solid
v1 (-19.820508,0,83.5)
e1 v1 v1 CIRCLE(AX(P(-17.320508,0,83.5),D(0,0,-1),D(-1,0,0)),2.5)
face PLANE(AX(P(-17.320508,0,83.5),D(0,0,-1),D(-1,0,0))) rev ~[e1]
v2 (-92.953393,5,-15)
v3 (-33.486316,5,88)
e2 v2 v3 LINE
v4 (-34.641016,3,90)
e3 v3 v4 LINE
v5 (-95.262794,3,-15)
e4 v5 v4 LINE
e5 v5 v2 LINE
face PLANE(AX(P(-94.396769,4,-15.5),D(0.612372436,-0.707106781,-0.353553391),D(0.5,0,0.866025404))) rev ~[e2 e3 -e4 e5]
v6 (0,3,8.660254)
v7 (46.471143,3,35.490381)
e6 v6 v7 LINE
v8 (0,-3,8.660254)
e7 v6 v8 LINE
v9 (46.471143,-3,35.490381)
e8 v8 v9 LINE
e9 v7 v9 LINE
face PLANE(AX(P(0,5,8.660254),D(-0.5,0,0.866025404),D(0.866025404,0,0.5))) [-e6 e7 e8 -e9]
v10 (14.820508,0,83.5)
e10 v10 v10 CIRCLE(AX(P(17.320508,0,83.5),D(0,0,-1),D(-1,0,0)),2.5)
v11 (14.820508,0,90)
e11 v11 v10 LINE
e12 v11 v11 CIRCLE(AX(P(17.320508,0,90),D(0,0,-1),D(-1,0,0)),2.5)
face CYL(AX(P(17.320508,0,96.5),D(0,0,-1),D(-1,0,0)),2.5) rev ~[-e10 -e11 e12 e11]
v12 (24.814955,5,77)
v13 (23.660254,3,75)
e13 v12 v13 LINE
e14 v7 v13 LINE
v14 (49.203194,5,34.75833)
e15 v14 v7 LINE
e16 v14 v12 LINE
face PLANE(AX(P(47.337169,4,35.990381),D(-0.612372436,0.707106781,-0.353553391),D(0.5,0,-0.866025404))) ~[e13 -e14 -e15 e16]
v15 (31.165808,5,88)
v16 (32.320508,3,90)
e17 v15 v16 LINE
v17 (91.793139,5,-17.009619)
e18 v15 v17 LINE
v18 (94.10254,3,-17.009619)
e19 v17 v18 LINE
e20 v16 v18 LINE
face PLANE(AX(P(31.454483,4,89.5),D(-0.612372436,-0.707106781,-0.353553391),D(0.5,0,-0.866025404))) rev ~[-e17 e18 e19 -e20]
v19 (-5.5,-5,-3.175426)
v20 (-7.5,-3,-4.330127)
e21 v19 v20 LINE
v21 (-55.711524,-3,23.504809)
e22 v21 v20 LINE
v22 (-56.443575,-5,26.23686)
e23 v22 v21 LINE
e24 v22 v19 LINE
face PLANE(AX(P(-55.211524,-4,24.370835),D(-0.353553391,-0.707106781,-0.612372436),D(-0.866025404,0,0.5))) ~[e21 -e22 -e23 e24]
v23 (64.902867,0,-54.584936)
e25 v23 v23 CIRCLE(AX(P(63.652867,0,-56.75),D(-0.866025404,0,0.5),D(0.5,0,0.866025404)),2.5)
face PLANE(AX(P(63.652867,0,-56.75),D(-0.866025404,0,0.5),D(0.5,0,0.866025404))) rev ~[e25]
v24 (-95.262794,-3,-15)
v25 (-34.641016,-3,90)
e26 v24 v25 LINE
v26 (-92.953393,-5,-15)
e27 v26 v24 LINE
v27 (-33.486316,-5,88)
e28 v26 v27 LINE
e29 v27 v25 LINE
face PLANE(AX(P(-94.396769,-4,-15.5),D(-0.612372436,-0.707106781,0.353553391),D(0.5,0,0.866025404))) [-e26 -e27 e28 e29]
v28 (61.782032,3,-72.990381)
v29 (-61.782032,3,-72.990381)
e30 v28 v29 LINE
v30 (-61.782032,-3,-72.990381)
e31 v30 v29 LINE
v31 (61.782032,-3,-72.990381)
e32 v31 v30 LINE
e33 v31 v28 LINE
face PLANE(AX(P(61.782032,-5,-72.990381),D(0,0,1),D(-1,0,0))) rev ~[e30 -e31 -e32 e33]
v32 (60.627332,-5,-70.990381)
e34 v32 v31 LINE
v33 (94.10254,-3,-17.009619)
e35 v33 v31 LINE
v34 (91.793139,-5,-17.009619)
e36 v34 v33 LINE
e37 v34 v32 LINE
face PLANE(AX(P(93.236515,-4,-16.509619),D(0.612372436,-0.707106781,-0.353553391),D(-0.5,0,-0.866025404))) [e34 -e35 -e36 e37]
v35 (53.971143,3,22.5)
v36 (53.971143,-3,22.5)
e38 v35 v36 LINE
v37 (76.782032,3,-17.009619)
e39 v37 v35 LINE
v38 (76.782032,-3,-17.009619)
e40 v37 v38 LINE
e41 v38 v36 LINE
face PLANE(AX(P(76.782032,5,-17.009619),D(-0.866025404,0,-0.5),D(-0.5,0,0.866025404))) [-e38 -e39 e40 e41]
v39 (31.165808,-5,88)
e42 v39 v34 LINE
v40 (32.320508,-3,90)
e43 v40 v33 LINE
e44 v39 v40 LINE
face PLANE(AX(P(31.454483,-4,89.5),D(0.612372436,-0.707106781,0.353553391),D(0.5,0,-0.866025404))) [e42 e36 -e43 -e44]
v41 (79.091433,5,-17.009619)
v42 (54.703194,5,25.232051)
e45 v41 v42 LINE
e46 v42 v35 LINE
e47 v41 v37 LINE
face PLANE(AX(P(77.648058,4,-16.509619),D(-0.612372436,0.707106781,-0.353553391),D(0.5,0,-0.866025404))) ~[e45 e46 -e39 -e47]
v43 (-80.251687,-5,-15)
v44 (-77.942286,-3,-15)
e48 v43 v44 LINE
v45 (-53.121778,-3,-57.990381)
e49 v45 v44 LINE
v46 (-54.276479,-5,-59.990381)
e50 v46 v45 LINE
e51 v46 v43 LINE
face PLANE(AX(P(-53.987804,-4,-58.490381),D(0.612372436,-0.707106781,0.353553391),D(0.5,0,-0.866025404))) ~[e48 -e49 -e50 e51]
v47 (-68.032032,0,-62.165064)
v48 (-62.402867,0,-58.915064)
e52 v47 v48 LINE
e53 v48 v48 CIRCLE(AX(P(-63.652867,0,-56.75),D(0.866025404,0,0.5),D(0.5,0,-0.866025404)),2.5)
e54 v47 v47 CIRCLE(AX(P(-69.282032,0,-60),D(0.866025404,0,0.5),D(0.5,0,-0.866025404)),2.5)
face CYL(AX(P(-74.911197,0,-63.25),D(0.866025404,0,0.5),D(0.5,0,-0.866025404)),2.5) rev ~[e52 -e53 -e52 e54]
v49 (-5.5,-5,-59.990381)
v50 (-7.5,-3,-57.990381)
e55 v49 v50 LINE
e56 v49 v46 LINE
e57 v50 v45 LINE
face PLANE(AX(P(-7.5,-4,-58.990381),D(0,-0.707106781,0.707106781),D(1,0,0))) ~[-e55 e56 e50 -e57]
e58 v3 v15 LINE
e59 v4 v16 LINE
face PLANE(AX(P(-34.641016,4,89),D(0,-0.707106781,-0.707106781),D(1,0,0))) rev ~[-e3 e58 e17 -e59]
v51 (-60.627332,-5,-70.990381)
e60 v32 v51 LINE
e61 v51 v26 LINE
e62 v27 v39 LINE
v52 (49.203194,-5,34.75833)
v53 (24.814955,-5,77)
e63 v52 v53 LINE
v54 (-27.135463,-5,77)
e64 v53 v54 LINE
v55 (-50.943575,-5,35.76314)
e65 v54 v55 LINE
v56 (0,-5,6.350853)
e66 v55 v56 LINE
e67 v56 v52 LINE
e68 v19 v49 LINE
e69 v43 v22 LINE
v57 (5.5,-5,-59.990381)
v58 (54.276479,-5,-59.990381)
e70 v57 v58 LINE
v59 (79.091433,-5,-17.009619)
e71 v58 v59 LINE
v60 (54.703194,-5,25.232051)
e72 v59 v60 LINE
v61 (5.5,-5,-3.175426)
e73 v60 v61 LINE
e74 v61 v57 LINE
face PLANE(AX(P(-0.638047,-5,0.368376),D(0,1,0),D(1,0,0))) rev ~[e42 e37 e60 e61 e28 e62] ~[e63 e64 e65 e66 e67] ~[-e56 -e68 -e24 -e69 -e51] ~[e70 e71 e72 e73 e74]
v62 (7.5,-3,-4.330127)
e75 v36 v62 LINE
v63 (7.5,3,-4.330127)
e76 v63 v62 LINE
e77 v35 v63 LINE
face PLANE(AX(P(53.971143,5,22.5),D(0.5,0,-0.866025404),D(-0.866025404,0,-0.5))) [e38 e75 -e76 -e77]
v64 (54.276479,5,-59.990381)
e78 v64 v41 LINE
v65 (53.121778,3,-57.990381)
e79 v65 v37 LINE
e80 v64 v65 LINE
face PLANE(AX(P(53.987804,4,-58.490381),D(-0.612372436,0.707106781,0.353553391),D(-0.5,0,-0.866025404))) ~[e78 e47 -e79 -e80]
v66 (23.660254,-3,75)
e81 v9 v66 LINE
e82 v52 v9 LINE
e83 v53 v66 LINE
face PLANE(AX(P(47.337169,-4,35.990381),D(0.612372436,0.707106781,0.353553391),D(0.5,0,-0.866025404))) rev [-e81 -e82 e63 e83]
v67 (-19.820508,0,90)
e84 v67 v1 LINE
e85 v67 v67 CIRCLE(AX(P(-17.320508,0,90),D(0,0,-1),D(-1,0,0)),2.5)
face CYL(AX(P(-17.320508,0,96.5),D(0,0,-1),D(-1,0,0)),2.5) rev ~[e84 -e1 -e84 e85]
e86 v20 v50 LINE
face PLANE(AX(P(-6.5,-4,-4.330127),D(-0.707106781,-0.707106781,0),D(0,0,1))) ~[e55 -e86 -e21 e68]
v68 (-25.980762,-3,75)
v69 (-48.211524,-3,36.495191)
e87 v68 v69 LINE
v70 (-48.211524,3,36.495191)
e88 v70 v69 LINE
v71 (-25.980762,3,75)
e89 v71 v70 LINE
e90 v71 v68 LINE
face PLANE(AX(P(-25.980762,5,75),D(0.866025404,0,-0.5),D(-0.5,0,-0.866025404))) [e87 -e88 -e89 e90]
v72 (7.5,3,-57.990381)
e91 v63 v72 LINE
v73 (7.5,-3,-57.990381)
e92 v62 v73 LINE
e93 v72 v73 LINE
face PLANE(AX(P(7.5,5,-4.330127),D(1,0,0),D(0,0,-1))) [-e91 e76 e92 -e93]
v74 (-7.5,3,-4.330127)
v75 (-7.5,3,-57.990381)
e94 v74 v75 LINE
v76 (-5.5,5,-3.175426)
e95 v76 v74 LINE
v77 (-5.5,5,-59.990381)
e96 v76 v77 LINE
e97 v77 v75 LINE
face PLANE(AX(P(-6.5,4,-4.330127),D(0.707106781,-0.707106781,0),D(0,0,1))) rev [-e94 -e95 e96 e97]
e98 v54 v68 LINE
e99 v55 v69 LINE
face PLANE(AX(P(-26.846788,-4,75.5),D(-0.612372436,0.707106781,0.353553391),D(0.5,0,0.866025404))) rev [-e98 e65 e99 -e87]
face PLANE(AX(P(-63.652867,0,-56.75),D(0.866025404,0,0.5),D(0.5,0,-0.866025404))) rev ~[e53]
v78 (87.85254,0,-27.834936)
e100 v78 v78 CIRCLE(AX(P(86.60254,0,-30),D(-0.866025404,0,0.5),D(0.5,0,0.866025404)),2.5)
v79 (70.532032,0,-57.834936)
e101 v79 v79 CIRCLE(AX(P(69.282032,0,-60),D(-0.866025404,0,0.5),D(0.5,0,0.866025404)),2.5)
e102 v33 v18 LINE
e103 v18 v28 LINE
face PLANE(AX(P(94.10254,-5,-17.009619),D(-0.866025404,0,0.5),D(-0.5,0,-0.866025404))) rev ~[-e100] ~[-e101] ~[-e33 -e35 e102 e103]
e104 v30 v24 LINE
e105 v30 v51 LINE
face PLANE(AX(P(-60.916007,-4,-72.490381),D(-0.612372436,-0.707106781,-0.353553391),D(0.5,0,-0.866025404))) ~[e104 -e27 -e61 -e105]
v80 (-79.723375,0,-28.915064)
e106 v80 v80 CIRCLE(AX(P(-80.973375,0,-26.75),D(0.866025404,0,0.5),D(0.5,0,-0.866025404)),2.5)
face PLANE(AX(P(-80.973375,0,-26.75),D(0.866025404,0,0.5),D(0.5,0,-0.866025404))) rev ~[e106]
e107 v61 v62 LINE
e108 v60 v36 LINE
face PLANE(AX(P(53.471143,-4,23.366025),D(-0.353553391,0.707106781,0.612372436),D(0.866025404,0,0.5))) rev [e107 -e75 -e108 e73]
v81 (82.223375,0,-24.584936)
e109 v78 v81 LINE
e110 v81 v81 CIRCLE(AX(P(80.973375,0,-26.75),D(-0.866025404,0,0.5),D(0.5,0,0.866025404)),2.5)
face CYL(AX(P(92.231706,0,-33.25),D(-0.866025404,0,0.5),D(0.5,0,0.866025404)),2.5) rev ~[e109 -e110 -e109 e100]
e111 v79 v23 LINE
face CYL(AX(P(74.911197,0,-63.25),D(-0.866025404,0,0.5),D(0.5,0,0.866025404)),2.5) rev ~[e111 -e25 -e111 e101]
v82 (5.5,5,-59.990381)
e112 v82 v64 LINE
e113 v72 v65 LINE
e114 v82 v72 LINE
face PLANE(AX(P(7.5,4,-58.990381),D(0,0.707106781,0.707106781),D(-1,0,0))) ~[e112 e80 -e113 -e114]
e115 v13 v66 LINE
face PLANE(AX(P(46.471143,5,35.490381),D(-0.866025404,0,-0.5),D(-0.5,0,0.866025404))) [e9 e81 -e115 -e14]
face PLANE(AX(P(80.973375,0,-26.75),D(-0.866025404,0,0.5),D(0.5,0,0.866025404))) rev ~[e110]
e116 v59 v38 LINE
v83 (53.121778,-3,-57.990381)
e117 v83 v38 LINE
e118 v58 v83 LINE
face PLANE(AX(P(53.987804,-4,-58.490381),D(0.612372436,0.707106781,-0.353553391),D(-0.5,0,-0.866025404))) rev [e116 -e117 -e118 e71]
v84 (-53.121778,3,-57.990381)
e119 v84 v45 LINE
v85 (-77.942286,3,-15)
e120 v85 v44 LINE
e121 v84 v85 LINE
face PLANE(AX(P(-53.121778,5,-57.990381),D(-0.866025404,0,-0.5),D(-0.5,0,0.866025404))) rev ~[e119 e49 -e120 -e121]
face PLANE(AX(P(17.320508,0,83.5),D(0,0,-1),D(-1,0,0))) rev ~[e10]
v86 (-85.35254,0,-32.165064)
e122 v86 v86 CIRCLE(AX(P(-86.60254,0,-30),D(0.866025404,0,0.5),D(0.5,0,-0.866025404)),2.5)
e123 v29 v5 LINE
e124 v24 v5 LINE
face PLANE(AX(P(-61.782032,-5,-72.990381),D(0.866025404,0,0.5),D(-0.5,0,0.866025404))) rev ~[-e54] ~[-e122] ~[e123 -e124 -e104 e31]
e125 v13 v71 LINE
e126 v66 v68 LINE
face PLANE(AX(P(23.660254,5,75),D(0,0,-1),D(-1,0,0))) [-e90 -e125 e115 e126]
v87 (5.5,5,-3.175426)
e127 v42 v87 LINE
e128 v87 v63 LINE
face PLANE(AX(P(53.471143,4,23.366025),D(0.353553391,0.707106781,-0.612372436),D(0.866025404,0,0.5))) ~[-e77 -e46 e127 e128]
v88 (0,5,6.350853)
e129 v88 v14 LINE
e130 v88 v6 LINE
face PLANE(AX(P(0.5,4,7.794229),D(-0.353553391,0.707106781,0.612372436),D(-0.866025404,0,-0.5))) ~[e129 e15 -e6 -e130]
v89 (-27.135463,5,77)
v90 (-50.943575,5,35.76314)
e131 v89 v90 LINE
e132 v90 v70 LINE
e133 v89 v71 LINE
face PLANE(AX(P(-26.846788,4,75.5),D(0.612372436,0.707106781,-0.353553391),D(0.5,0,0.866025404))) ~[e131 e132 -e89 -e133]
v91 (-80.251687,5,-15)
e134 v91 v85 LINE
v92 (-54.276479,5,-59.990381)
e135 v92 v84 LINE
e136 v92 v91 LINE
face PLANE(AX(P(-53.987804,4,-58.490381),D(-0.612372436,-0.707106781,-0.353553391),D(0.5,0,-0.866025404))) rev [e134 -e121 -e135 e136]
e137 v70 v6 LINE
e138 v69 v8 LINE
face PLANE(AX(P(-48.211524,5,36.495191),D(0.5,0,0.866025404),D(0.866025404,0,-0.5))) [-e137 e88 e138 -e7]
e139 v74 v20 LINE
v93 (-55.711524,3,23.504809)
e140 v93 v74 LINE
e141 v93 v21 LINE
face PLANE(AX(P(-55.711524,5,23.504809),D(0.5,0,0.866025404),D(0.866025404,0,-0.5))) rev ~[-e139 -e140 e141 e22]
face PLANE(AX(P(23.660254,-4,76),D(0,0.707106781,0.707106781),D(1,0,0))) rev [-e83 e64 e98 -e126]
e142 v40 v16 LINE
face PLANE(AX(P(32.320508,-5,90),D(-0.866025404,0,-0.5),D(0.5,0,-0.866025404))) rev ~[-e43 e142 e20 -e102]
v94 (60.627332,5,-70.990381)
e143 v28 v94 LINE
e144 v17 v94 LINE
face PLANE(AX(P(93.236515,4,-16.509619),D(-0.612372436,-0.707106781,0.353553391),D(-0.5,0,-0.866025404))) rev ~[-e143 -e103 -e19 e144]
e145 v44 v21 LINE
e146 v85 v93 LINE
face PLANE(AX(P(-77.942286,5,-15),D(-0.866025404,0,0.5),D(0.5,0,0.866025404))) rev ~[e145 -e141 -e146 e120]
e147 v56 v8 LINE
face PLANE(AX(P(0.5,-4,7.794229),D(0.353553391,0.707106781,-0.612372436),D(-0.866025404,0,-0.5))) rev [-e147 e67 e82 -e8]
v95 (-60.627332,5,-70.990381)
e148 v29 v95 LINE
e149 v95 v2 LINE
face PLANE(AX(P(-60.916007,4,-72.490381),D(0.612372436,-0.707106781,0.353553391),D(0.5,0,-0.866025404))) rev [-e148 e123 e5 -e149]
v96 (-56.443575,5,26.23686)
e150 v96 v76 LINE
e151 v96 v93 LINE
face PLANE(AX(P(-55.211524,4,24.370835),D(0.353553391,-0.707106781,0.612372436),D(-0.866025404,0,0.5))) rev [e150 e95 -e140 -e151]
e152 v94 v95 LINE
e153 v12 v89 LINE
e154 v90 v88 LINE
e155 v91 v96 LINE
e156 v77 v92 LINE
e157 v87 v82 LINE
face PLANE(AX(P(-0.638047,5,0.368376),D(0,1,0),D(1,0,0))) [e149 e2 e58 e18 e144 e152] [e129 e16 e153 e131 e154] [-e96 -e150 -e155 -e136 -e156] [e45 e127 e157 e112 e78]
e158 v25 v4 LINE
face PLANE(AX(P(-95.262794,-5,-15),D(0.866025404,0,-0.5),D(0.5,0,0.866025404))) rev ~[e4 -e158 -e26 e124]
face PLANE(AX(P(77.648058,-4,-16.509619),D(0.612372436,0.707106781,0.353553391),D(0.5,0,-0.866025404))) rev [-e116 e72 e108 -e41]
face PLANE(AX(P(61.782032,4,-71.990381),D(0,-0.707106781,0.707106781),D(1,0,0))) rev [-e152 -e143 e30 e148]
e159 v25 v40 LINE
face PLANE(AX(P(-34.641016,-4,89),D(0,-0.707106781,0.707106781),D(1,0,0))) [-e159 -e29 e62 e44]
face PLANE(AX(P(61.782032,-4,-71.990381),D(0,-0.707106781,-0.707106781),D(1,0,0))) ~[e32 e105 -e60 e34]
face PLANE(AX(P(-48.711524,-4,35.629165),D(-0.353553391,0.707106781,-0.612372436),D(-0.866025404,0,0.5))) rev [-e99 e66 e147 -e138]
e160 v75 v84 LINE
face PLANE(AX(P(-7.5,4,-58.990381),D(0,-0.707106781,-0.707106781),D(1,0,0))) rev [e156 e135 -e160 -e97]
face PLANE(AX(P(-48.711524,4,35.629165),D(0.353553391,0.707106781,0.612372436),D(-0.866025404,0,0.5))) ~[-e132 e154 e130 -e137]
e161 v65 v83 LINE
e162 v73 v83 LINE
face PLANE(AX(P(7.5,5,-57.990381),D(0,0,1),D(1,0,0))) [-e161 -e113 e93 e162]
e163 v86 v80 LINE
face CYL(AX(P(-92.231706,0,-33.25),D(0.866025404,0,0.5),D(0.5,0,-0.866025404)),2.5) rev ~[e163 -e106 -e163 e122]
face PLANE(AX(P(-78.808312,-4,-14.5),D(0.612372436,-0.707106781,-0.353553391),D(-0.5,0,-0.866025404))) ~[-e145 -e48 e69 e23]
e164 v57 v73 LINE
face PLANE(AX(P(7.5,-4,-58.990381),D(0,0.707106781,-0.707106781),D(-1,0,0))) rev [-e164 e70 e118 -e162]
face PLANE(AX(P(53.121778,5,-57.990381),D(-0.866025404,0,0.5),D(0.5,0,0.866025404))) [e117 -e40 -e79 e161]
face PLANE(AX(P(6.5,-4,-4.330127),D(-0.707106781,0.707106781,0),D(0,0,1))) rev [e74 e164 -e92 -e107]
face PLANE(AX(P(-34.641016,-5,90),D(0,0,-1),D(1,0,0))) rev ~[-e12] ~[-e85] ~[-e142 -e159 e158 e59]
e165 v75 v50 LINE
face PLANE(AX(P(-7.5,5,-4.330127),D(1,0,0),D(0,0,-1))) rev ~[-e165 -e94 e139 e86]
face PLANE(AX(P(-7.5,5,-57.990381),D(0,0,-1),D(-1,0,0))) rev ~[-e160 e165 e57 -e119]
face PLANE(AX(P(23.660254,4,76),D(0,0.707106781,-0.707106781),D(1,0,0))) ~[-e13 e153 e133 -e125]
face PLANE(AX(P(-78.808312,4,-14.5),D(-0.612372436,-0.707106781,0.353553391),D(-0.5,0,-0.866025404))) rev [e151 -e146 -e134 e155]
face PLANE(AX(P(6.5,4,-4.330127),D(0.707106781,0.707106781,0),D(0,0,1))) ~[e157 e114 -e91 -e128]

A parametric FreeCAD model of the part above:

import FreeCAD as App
import Part
import Sketcher
Q = App.Units.Quantity


def edges_at(feature, points):
    """Names of the edges that pass closest to the given points."""
    edges = feature.Shape.Edges
    near = lambda p: min(range(len(edges)), key=lambda i: edges[i].distToShape(Part.Vertex(*p))[0])
    return sorted({f"Edge{near(p) + 1}" for p in points})


def add_polygon(sketch, points):
    """Adds a closed chain of lines whose ends are joined by coincident constraints."""
    first, n = sketch.GeometryCount, len(points)
    for a, b in zip(points, points[1:] + points[:1]):
        sketch.addGeometry(Part.LineSegment(App.Vector(*a, 0), App.Vector(*b, 0)), False)
    for i in range(n):
        sketch.addConstraint(Sketcher.Constraint("Coincident", first + i, 2, first + (i + 1) % n, 1))

doc = App.newDocument("Part")
body = doc.addObject("PartDesign::Body", "Body")

sketch1 = doc.addObject("Sketcher::SketchObject", "Sketch")
body.addObject(sketch1)
sketch1.AttachmentSupport = (doc.XZ_Plane, [""])
sketch1.MapMode = "FlatFace"
add_polygon(sketch1, [(-62, -73), (-95, -15), (-35, 90), (32, 90), (94, -17), (62, -73)])
sketch1.addConstraint(Sketcher.Constraint("Horizontal", 2))
sketch1.addConstraint(Sketcher.Constraint("Horizontal", 5))
sketch1.addConstraint(Sketcher.Constraint("Parallel", 0, 3))
sketch1.addConstraint(Sketcher.Constraint("Parallel", 1, 4))
sketch1.addConstraint(Sketcher.Constraint("Angle", 0, Q("120 deg")))
sketch1.addConstraint(Sketcher.Constraint("Angle", 1, Q("60 deg")))
sketch1.addConstraint(Sketcher.Constraint("DistanceY", 0, 2, -1, 1, 15.0))
sketch1.addConstraint(Sketcher.Constraint("DistanceY", -1, 1, 1, 2, 90.0))
sketch1.addConstraint(Sketcher.Constraint("DistanceX", 2, 1, 2, 2, 66.961524))
sketch1.addConstraint(Sketcher.Constraint("DistanceX", 5, 2, 5, 1, 123.564065))
sketch1.addConstraint(Sketcher.Constraint("DistanceX", -1, 1, 2, 2, 32.320508))
sketch1.addConstraint(Sketcher.Constraint("DistanceX", -1, 1, 3, 2, 94.10254))
pad1 = doc.addObject("PartDesign::Pad", "Pad")
body.addObject(pad1)
pad1.Profile = sketch1
pad1.Type = "TwoLengths"
pad1.Length = 5
pad1.Length2 = 5
pad1.Reversed = True

sketch2 = doc.addObject("Sketcher::SketchObject", "Sketch001")
body.addObject(sketch2)
sketch2.AttachmentSupport = (doc.XY_Plane, [""])
sketch2.MapMode = "FlatFace"
sketch2.AttachmentOffset = App.Placement(App.Vector(0, 0, 90), App.Rotation())
sketch2.addGeometry(Part.Circle(App.Vector(-17.3, 0, 0), App.Vector(0, 0, 1), 2.5), False)
sketch2.addGeometry(Part.Circle(App.Vector(17.3, 0, 0), App.Vector(0, 0, 1), 2.5), False)
sketch2.addConstraint(Sketcher.Constraint("Equal", 0, 1))
sketch2.addConstraint(Sketcher.Constraint("Symmetric", 0, 3, 1, 3, -1, 1))
sketch2.addConstraint(Sketcher.Constraint("PointOnObject", 0, 3, -1))
sketch2.addConstraint(Sketcher.Constraint("Diameter", 0, 5.0))
sketch2.addConstraint(Sketcher.Constraint("DistanceX", 0, 3, -1, 1, 17.320508))
doc.recompute()
hole = doc.addObject("PartDesign::Hole", "Hole")
body.addObject(hole)
hole.Profile = sketch2
hole.ThreadType = "None"
hole.Diameter = 5
hole.DepthType = "Dimension"
hole.Depth = 6.5
hole.DrillPoint = "Flat"

sketch3 = doc.addObject("Sketcher::SketchObject", "Sketch002")
body.addObject(sketch3)
sketch3.Placement = App.Placement(App.Vector(77.942286, 0, -45), App.Rotation(App.Vector(-0.5, 0, -0.866025404), App.Vector(0, 1, 0), App.Vector(0.866025404, 0, -0.5), "ZXY"))
sketch3.addGeometry(Part.Circle(App.Vector(-17.3, 0, 0), App.Vector(0, 0, 1), 2.5), False)
sketch3.addGeometry(Part.Circle(App.Vector(17.3, 0, 0), App.Vector(0, 0, 1), 2.5), False)
sketch3.addConstraint(Sketcher.Constraint("Equal", 0, 1))
sketch3.addConstraint(Sketcher.Constraint("Symmetric", 0, 3, 1, 3, -1, 1))
sketch3.addConstraint(Sketcher.Constraint("PointOnObject", 0, 3, -1))
sketch3.addConstraint(Sketcher.Constraint("Diameter", 0, 5.0))
sketch3.addConstraint(Sketcher.Constraint("DistanceX", 0, 3, -1, 1, 17.320508))
doc.recompute()
hole2 = doc.addObject("PartDesign::Hole", "Hole001")
body.addObject(hole2)
hole2.Profile = sketch3
hole2.ThreadType = "None"
hole2.Diameter = 5
hole2.DepthType = "Dimension"
hole2.Depth = 6.5
hole2.DrillPoint = "Flat"

sketch4 = doc.addObject("Sketcher::SketchObject", "Sketch003")
body.addObject(sketch4)
sketch4.Placement = App.Placement(App.Vector(-77.942286, 0, -45), App.Rotation(App.Vector(-0.5, 0, 0.866025404), App.Vector(0, 1, 0), App.Vector(-0.866025404, 0, -0.5), "ZXY"))
sketch4.addGeometry(Part.Circle(App.Vector(-17.3, 0, 0), App.Vector(0, 0, 1), 2.5), False)
sketch4.addGeometry(Part.Circle(App.Vector(17.3, 0, 0), App.Vector(0, 0, 1), 2.5), False)
sketch4.addConstraint(Sketcher.Constraint("Equal", 0, 1))
sketch4.addConstraint(Sketcher.Constraint("Symmetric", 0, 3, 1, 3, -1, 1))
sketch4.addConstraint(Sketcher.Constraint("PointOnObject", 0, 3, -1))
sketch4.addConstraint(Sketcher.Constraint("Diameter", 0, 5.0))
sketch4.addConstraint(Sketcher.Constraint("DistanceX", 0, 3, -1, 1, 17.320508))
doc.recompute()
hole3 = doc.addObject("PartDesign::Hole", "Hole002")
body.addObject(hole3)
hole3.Profile = sketch4
hole3.ThreadType = "None"
hole3.Diameter = 5
hole3.DepthType = "Dimension"
hole3.Depth = 6.5
hole3.DrillPoint = "Flat"

sketch5 = doc.addObject("Sketcher::SketchObject", "Sketch004")
body.addObject(sketch5)
sketch5.AttachmentSupport = (doc.XZ_Plane, [""])
sketch5.MapMode = "FlatFace"
sketch5.AttachmentOffset = App.Placement(App.Vector(0, 0, -5), App.Rotation())
add_polygon(sketch5, [(-8, -58), (-53, -58), (-78, -15), (-56, 24), (-8, -4)])
add_polygon(sketch5, [(53, -58), (8, -58), (8, -4), (54, 22), (77, -17)])
add_polygon(sketch5, [(24, 75), (46, 35), (0, 9), (-48, 36), (-26, 75)])
sketch5.addConstraint(Sketcher.Constraint("Horizontal", 0))
sketch5.addConstraint(Sketcher.Constraint("Vertical", 4))
sketch5.addConstraint(Sketcher.Constraint("Horizontal", 5))
sketch5.addConstraint(Sketcher.Constraint("Vertical", 6))
sketch5.addConstraint(Sketcher.Constraint("Horizontal", 14))
sketch5.addConstraint(Sketcher.Constraint("Symmetric", 4, 2, 5, 2, -2))
sketch5.addConstraint(Sketcher.Constraint("PointOnObject", 11, 2, -2))
sketch5.addConstraint(Sketcher.Constraint("Perpendicular", 2, 3))
sketch5.addConstraint(Sketcher.Constraint("Perpendicular", 1, 7))
sketch5.addConstraint(Sketcher.Constraint("Perpendicular", 7, 8))
sketch5.addConstraint(Sketcher.Constraint("Perpendicular", 3, 9))
sketch5.addConstraint(Sketcher.Constraint("Parallel", 8, 10))
sketch5.addConstraint(Sketcher.Constraint("Perpendicular", 10, 11))
sketch5.addConstraint(Sketcher.Constraint("Perpendicular", 9, 12))
sketch5.addConstraint(Sketcher.Constraint("Perpendicular", 12, 13))
sketch5.addConstraint(Sketcher.Constraint("Horizontal", 3, 2, 6, 2))
sketch5.addConstraint(Sketcher.Constraint("Equal", 0, 5))
sketch5.addConstraint(Sketcher.Constraint("Equal", 8, 10))
sketch5.addConstraint(Sketcher.Constraint("Equal", 7, 11))
sketch5.addConstraint(Sketcher.Constraint("Equal", 3, 12))
sketch5.addConstraint(Sketcher.Constraint("Equal", 2, 13))
sketch5.addConstraint(Sketcher.Constraint("Angle", 1, Q("120 deg")))
sketch5.addConstraint(Sketcher.Constraint("DistanceY", 1, 2, -1, 1, 15.0))
sketch5.addConstraint(Sketcher.Constraint("DistanceY", -1, 1, 13, 2, 75.0))
sketch5.addConstraint(Sketcher.Constraint("DistanceX", 4, 2, 5, 2, 15.0))
sketch5.addConstraint(Sketcher.Constraint("DistanceY", -1, 1, 7, 2, 22.5))
sketch5.addConstraint(Sketcher.Constraint("DistanceX", 0, 2, 0, 1, 45.621778))
sketch5.addConstraint(Sketcher.Constraint("Distance", 8, 45.621778))
sketch5.addConstraint(Sketcher.Constraint("Distance", 9, 47.320508))
pocket1 = doc.addObject("PartDesign::Pocket", "Pocket")
body.addObject(pocket1)
pocket1.Profile = sketch5
pocket1.Type = "ThroughAll"
pocket1.Reversed = True
doc.recompute()

chamfer = doc.addObject("PartDesign::Chamfer", "Chamfer")
body.addObject(chamfer)
chamfer.Base = (pocket1, edges_at(pocket1, [
    (-64.952, -5, 37.5),
    (-1.16, -5, 90),
    (0, 5, -72.99),
    (-78.522, 5, -43.995),
    (-64.952, 5, 37.5),
    (-1.16, 5, 90),
    (63.212, 5, 36.495),
    (77.942, 5, -45),
    (63.212, -5, 36.495),
    (77.942, -5, -45),
    (0, -5, -72.99),
    (23.236, -5, 22.075),
    (35.066, -5, 55.245),
    (-1.16, -5, 75),
    (-37.096, -5, 55.748),
    (-24.106, -5, 22.578),
    (23.236, 5, 22.075),
    (-24.106, 5, 22.578),
    (-37.096, 5, 55.748),
    (-1.16, 5, 75),
    (35.066, 5, 55.245),
    (-65.532, -5, -36.495),
    (-30.311, -5, -57.99),
    (-7.5, -5, -31.16),
    (-31.606, -5, 9.587),
    (-66.827, -5, 4.252),
    (-65.532, 5, -36.495),
    (-66.827, 5, 4.252),
    (-31.606, 5, 9.587),
    (-7.5, 5, -31.16),
    (-30.311, 5, -57.99),
    (7.5, -5, -31.16),
    (30.311, -5, -57.99),
    (64.952, -5, -37.5),
    (65.377, -5, 2.745),
    (30.736, -5, 9.085),
    (7.5, 5, -31.16),
    (30.736, 5, 9.085),
    (65.377, 5, 2.745),
    (64.952, 5, -37.5),
    (30.311, 5, -57.99),
    (-78.522, -5, -43.995),
]))
chamfer.Size = 2

doc.recompute()
